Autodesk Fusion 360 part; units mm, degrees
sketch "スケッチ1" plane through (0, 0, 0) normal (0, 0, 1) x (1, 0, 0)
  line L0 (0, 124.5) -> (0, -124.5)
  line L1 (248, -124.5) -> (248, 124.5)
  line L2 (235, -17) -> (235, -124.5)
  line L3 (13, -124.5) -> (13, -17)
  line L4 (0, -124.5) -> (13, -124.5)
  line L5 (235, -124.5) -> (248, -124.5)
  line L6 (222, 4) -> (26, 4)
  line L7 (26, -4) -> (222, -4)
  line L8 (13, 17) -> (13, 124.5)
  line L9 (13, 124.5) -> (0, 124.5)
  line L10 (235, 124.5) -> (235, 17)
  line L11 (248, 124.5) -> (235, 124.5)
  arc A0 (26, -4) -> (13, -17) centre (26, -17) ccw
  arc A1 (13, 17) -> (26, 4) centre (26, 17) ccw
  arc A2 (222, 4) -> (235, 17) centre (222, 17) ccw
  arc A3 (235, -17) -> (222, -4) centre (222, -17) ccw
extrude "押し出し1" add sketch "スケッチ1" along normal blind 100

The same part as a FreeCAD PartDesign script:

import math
import FreeCAD as App
import Part
import Sketcher

V = App.Vector

doc = App.newDocument("Part")
body = doc.addObject("PartDesign::Body", "Body")

# Sketch on XY plane
sketch1 = body.newObject("Sketcher::SketchObject", "Sketch")
sketch1.AttachmentSupport = (doc.getObject("XY_Plane"), [""])
sketch1.MapMode = "FlatFace"
sketch1.addGeometry(Part.LineSegment(V(13, 124, 0), V(0, 124, 0)), False)
sketch1.addGeometry(Part.LineSegment(V(0, 124, 0), V(0, -124, 0)), False)
sketch1.addGeometry(Part.LineSegment(V(0, -124, 0), V(13, -124, 0)), False)
sketch1.addGeometry(Part.LineSegment(V(13, -124, 0), V(13, -17, 0)), False)
sketch1.addGeometry(Part.ArcOfCircle(Part.Circle(V(26, -17, 0), V(0, 0, 1), 13), math.radians(90), math.radians(180)), False)
sketch1.addGeometry(Part.LineSegment(V(26, -4, 0), V(222, -4, 0)), False)
sketch1.addGeometry(Part.ArcOfCircle(Part.Circle(V(222, -17, 0), V(0, 0, 1), 13), math.radians(0), math.radians(90)), False)
sketch1.addGeometry(Part.LineSegment(V(235, -17, 0), V(235, -124, 0)), False)
sketch1.addGeometry(Part.LineSegment(V(235, -124, 0), V(248, -124, 0)), False)
sketch1.addGeometry(Part.LineSegment(V(248, -124, 0), V(248, 124, 0)), False)
sketch1.addGeometry(Part.LineSegment(V(248, 124, 0), V(235, 124, 0)), False)
sketch1.addGeometry(Part.LineSegment(V(235, 124, 0), V(235, 17, 0)), False)
sketch1.addGeometry(Part.ArcOfCircle(Part.Circle(V(222, 17, 0), V(0, 0, 1), 13), math.radians(-90), math.radians(0)), False)
sketch1.addGeometry(Part.LineSegment(V(222, 4, 0), V(26, 4, 0)), False)
sketch1.addGeometry(Part.ArcOfCircle(Part.Circle(V(26, 17, 0), V(0, 0, 1), 13), math.radians(180), math.radians(270)), False)
sketch1.addGeometry(Part.LineSegment(V(13, 17, 0), V(13, 124, 0)), False)
sketch1.addConstraint(Sketcher.Constraint("Coincident", 0, 2, 1, 1))
sketch1.addConstraint(Sketcher.Constraint("Coincident", 1, 2, 2, 1))
sketch1.addConstraint(Sketcher.Constraint("Coincident", 2, 2, 3, 1))
sketch1.addConstraint(Sketcher.Constraint("Tangent", 3, 2, 4, 2))
sketch1.addConstraint(Sketcher.Constraint("Tangent", 4, 1, 5, 1))
sketch1.addConstraint(Sketcher.Constraint("Tangent", 5, 2, 6, 2))
sketch1.addConstraint(Sketcher.Constraint("Tangent", 6, 1, 7, 1))
sketch1.addConstraint(Sketcher.Constraint("Coincident", 7, 2, 8, 1))
sketch1.addConstraint(Sketcher.Constraint("Coincident", 8, 2, 9, 1))
sketch1.addConstraint(Sketcher.Constraint("Coincident", 9, 2, 10, 1))
sketch1.addConstraint(Sketcher.Constraint("Coincident", 10, 2, 11, 1))
sketch1.addConstraint(Sketcher.Constraint("Tangent", 11, 2, 12, 2))
sketch1.addConstraint(Sketcher.Constraint("Tangent", 12, 1, 13, 1))
sketch1.addConstraint(Sketcher.Constraint("Tangent", 13, 2, 14, 2))
sketch1.addConstraint(Sketcher.Constraint("Tangent", 14, 1, 15, 1))
sketch1.addConstraint(Sketcher.Constraint("Coincident", 15, 2, 0, 1))
sketch1.addConstraint(Sketcher.Constraint("Horizontal", 0))
sketch1.addConstraint(Sketcher.Constraint("Vertical", 1))
sketch1.addConstraint(Sketcher.Constraint("Horizontal", 2))
sketch1.addConstraint(Sketcher.Constraint("Vertical", 3))
sketch1.addConstraint(Sketcher.Constraint("Horizontal", 5))
sketch1.addConstraint(Sketcher.Constraint("Vertical", 7))
sketch1.addConstraint(Sketcher.Constraint("Horizontal", 8))
sketch1.addConstraint(Sketcher.Constraint("Vertical", 9))
sketch1.addConstraint(Sketcher.Constraint("Horizontal", 10))
sketch1.addConstraint(Sketcher.Constraint("Vertical", 11))
sketch1.addConstraint(Sketcher.Constraint("Horizontal", 13))
sketch1.addConstraint(Sketcher.Constraint("Vertical", 15))
sketch1.addConstraint(Sketcher.Constraint("Equal", 4, 6))
sketch1.addConstraint(Sketcher.Constraint("Equal", 6, 12))
sketch1.addConstraint(Sketcher.Constraint("Equal", 12, 14))
sketch1.addConstraint(Sketcher.Constraint("Symmetric", 0, 2, 1, 2, -1, 1))
sketch1.addConstraint(Sketcher.Constraint("Symmetric", 6, 3, 12, 3, -1))
sketch1.addConstraint(Sketcher.Constraint("Horizontal", 2, 2, 7, 2))
sketch1.addConstraint(Sketcher.Constraint("Horizontal", 0, 2, 9, 2))
sketch1.addConstraint(Sketcher.Constraint("Vertical", 4, 3, 14, 3))
sketch1.addConstraint(Sketcher.Constraint("Equal", 2, 8))
sketch1.addConstraint(Sketcher.Constraint("Radius", 4, 13.0))
sketch1.addConstraint(Sketcher.Constraint("DistanceX", 0, 2, 0, 1, 13.0))
sketch1.addConstraint(Sketcher.Constraint("DistanceX", 5, 1, 5, 2, 196.0))
sketch1.addConstraint(Sketcher.Constraint("DistanceY", 1, 2, 1, 1, 249.0))
sketch1.addConstraint(Sketcher.Constraint("DistanceY", 3, 1, 3, 2, 107.5))
pad1 = body.newObject("PartDesign::Pad", "Pad")
pad1.Profile = sketch1
pad1.Length = 100

doc.recompute()
